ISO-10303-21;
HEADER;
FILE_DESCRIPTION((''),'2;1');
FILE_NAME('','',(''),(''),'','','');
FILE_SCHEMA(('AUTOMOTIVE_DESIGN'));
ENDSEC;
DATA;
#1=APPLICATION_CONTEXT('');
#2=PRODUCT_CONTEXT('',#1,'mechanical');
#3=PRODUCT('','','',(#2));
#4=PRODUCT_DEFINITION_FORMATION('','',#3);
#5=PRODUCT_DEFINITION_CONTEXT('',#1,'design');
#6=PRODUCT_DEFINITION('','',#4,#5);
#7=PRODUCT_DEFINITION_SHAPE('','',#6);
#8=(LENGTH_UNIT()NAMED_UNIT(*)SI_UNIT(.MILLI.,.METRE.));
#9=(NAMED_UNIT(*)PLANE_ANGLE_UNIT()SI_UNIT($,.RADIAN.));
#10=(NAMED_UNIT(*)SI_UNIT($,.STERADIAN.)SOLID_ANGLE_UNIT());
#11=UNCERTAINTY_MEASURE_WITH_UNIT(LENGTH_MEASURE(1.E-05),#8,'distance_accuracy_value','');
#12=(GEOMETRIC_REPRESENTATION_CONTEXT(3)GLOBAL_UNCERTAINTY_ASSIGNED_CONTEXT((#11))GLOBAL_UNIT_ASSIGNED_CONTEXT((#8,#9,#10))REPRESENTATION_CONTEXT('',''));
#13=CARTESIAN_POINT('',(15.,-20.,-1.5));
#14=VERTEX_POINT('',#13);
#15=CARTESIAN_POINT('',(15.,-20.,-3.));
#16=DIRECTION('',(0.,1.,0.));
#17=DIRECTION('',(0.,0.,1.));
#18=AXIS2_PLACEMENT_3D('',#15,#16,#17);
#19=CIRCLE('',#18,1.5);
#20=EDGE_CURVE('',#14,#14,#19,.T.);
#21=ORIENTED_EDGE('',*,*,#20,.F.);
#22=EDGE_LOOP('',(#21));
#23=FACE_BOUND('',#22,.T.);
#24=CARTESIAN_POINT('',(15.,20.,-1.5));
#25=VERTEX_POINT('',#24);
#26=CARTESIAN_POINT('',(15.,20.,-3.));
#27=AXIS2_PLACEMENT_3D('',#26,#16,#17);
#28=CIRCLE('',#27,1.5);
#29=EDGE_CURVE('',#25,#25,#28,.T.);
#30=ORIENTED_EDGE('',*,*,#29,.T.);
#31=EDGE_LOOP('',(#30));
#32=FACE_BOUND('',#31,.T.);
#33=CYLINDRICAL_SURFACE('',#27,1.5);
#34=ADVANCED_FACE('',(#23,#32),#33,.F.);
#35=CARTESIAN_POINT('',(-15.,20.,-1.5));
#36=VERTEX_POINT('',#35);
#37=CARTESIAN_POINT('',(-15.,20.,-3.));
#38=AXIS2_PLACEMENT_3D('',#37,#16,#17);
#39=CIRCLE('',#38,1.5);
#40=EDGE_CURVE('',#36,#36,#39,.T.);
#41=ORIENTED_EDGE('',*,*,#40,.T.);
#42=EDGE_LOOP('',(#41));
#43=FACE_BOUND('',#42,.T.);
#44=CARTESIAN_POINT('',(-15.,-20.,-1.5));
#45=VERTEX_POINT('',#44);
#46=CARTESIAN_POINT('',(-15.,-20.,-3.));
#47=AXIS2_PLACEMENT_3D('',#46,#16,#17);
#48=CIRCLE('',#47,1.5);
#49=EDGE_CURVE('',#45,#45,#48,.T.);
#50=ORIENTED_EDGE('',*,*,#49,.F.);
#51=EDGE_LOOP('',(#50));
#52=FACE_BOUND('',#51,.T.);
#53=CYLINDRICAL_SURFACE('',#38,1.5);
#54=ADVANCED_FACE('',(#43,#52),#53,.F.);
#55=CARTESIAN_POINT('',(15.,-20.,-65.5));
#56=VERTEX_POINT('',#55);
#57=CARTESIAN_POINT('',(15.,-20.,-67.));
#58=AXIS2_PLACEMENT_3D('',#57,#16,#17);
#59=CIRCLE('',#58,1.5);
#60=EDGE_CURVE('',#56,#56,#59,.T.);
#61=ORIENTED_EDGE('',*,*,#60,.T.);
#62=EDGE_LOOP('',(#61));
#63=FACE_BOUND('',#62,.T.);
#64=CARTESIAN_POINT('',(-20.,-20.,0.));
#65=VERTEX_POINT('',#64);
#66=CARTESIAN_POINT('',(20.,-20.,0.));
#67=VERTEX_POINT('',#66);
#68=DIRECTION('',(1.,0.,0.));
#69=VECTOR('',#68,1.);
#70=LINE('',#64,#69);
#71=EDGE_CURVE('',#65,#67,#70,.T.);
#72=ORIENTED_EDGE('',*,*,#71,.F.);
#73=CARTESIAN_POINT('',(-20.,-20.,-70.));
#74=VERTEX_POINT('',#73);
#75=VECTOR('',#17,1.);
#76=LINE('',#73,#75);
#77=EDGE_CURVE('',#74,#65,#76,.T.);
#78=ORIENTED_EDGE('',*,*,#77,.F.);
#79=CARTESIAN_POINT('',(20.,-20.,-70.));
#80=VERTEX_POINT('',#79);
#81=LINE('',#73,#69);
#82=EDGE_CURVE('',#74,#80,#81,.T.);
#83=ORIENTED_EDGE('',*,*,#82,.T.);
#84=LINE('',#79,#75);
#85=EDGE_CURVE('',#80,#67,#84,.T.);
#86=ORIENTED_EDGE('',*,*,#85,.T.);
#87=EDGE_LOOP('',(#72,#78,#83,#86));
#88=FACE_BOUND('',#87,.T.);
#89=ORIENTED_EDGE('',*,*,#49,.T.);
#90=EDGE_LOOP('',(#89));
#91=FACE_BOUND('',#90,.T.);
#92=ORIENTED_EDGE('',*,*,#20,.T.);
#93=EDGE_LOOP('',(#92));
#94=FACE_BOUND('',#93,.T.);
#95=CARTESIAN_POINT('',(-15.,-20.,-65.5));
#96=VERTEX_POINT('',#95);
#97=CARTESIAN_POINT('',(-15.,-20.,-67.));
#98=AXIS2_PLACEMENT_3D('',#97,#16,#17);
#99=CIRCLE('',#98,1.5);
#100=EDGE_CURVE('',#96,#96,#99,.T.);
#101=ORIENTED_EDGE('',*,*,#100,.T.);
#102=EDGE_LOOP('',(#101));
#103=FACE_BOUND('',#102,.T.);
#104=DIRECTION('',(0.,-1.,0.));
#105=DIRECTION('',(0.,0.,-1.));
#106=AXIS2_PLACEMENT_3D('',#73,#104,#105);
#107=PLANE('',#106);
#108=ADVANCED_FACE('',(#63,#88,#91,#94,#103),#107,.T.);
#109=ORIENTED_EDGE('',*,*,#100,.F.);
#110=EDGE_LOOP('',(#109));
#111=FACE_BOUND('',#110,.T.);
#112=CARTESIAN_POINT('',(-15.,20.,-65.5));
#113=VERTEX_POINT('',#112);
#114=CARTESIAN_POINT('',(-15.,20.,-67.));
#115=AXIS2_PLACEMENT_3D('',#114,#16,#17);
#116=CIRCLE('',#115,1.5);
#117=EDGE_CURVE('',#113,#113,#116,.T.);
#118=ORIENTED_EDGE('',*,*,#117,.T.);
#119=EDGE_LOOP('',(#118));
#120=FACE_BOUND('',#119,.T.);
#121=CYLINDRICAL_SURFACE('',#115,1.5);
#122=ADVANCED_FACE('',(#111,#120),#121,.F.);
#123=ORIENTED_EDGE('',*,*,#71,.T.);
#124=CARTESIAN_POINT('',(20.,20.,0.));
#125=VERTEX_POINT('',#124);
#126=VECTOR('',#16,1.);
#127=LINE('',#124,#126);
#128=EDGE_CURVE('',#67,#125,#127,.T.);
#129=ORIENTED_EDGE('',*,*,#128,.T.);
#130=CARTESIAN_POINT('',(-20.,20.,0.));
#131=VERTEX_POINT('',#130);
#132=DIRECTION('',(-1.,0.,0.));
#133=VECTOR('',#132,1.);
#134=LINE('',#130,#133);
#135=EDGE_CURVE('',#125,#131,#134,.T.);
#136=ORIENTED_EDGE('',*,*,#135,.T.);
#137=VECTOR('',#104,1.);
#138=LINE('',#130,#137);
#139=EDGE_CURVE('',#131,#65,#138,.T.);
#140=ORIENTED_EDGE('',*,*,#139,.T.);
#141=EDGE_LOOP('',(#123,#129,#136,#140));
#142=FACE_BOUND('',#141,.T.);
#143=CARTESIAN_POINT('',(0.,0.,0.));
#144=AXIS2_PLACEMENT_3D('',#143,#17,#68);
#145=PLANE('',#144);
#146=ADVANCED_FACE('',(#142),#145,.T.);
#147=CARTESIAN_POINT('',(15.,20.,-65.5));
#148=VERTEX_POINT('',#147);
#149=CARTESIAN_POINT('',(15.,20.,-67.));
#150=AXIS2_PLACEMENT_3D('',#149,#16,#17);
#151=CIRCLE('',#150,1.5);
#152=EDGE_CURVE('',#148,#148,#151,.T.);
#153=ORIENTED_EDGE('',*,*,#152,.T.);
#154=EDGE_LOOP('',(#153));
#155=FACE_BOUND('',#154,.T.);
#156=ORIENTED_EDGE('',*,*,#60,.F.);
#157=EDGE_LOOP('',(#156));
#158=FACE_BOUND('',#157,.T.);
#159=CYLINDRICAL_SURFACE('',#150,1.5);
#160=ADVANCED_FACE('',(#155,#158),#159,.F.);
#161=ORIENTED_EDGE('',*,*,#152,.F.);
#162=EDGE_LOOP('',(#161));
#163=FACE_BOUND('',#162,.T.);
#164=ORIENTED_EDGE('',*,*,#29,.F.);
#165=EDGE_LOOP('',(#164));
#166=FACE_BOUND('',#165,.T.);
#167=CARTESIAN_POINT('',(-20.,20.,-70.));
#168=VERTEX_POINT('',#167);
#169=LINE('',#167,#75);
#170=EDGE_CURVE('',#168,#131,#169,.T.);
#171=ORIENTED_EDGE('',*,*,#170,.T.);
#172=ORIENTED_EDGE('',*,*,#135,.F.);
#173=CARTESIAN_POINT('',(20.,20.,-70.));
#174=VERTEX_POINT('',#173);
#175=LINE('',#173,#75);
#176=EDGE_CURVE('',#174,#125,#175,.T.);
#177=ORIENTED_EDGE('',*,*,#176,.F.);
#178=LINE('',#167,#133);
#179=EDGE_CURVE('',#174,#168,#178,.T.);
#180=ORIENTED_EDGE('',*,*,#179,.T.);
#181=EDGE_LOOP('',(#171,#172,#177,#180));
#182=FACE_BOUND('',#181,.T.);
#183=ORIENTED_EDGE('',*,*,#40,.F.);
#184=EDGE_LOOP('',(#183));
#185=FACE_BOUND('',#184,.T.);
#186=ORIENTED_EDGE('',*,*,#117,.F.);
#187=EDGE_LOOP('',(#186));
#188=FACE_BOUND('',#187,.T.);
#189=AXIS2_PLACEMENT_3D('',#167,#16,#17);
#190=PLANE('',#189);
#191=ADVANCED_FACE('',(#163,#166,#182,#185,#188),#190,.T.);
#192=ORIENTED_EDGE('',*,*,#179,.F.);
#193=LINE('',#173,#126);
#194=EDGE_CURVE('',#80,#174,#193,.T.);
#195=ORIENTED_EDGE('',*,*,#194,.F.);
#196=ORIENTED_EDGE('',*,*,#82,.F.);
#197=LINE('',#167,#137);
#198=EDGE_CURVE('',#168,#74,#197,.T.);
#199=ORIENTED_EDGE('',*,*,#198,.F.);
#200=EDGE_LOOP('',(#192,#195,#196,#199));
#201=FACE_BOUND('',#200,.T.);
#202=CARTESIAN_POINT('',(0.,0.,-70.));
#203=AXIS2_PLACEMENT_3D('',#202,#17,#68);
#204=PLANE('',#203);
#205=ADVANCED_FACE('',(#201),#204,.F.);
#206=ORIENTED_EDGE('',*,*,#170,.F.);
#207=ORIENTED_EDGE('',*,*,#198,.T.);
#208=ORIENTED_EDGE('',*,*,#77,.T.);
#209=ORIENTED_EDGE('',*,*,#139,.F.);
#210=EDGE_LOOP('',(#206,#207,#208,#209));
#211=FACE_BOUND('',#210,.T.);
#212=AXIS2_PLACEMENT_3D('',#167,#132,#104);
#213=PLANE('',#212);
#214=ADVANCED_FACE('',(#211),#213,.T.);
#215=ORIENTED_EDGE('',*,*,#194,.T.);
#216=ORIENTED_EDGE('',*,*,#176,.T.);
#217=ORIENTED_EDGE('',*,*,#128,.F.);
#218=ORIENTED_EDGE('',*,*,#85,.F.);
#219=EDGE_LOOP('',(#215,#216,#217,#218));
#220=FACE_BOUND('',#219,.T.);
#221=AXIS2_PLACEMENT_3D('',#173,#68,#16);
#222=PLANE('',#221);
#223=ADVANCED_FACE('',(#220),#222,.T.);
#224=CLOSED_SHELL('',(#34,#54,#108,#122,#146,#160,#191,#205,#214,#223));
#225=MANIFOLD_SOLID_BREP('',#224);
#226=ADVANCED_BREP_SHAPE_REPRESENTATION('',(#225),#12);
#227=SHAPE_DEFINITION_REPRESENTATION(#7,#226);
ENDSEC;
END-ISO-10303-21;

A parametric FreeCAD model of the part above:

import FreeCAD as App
import Part
import Sketcher

doc = App.newDocument("Part")
params = doc.addObject("Spreadsheet::Sheet", "Params")
for row, (alias, value) in enumerate([
    ("sketch1_width", "40 mm"),
    ("pad1_length", "70 mm"),
    ("sketch2_diameter", "3 mm"),
    ("hole_diameter", "3 mm"),
], start=1):
    params.set(f"A{row}", alias)
    params.set(f"B{row}", "=" + value)
    params.setAlias(f"B{row}", alias)

body = doc.addObject("PartDesign::Body", "Body")

sketch1 = body.newObject("Sketcher::SketchObject", "Sketch")
sketch1.AttachmentSupport = (doc.getObject("XY_Plane"), [""])
sketch1.MapMode = "FlatFace"
sketch1.addGeometry(Part.LineSegment(App.Vector(-20, 20, 0), App.Vector(-20, -20, 0)), False)
sketch1.addGeometry(Part.LineSegment(App.Vector(-20, -20, 0), App.Vector(20, -20, 0)), False)
sketch1.addGeometry(Part.LineSegment(App.Vector(20, -20, 0), App.Vector(20, 20, 0)), False)
sketch1.addGeometry(Part.LineSegment(App.Vector(20, 20, 0), App.Vector(-20, 20, 0)), False)
sketch1.addConstraint(Sketcher.Constraint("Coincident", 0, 2, 1, 1))
sketch1.addConstraint(Sketcher.Constraint("Coincident", 1, 2, 2, 1))
sketch1.addConstraint(Sketcher.Constraint("Coincident", 2, 2, 3, 1))
sketch1.addConstraint(Sketcher.Constraint("Coincident", 3, 2, 0, 1))
sketch1.addConstraint(Sketcher.Constraint("Vertical", 0))
sketch1.addConstraint(Sketcher.Constraint("Horizontal", 1))
sketch1.addConstraint(Sketcher.Constraint("Vertical", 2))
sketch1.addConstraint(Sketcher.Constraint("Horizontal", 3))
sketch1.addConstraint(Sketcher.Constraint("Symmetric", 0, 2, 2, 2, -1, 1))
sketch1.addConstraint(Sketcher.Constraint("Equal", 3, 0))
sketch1.addConstraint(Sketcher.Constraint("DistanceX", 1, 1, 1, 2, 40.0))
sketch1.setExpression("Constraints[10]", "Params.sketch1_width")
pad1 = body.newObject("PartDesign::Pad", "Pad")
pad1.Profile = sketch1
pad1.setExpression("Length", "Params.pad1_length")
pad1.Reversed = True

sketch2 = body.newObject("Sketcher::SketchObject", "Sketch001")
sketch2.AttachmentSupport = (doc.getObject("XZ_Plane"), [""])
sketch2.MapMode = "FlatFace"
sketch2.AttachmentOffset = App.Placement(App.Vector(0, 0, -20), App.Rotation())
sketch2.addGeometry(Part.Circle(App.Vector(-15, -67, 0), App.Vector(0, 0, 1), 1.5), False)
sketch2.addGeometry(Part.Circle(App.Vector(15, -67, 0), App.Vector(0, 0, 1), 1.5), False)
sketch2.addGeometry(Part.Circle(App.Vector(-15, -3, 0), App.Vector(0, 0, 1), 1.5), False)
sketch2.addGeometry(Part.Circle(App.Vector(15, -3, 0), App.Vector(0, 0, 1), 1.5), False)
sketch2.addConstraint(Sketcher.Constraint("Equal", 0, 1))
sketch2.addConstraint(Sketcher.Constraint("Equal", 1, 2))
sketch2.addConstraint(Sketcher.Constraint("Equal", 2, 3))
sketch2.addConstraint(Sketcher.Constraint("Symmetric", 0, 3, 1, 3, -2))
sketch2.addConstraint(Sketcher.Constraint("Symmetric", 2, 3, 3, 3, -2))
sketch2.addConstraint(Sketcher.Constraint("Vertical", 0, 3, 2, 3))
sketch2.addConstraint(Sketcher.Constraint("Diameter", 0, 3.0))
sketch2.addConstraint(Sketcher.Constraint("DistanceX", 0, 3, -1, 1, 15.0))
sketch2.addConstraint(Sketcher.Constraint("DistanceY", 0, 3, -1, 1, 67.0))
sketch2.addConstraint(Sketcher.Constraint("DistanceY", 2, 3, -1, 1, 3.0))
sketch2.setExpression("Constraints[6]", "Params.sketch2_diameter")
doc.recompute()
hole = body.newObject("PartDesign::Hole", "Hole")
hole.Profile = sketch2
hole.ThreadType = "None"
hole.setExpression("Diameter", "Params.hole_diameter")
hole.DepthType = "ThroughAll"
hole.Reversed = True

doc.recompute()
